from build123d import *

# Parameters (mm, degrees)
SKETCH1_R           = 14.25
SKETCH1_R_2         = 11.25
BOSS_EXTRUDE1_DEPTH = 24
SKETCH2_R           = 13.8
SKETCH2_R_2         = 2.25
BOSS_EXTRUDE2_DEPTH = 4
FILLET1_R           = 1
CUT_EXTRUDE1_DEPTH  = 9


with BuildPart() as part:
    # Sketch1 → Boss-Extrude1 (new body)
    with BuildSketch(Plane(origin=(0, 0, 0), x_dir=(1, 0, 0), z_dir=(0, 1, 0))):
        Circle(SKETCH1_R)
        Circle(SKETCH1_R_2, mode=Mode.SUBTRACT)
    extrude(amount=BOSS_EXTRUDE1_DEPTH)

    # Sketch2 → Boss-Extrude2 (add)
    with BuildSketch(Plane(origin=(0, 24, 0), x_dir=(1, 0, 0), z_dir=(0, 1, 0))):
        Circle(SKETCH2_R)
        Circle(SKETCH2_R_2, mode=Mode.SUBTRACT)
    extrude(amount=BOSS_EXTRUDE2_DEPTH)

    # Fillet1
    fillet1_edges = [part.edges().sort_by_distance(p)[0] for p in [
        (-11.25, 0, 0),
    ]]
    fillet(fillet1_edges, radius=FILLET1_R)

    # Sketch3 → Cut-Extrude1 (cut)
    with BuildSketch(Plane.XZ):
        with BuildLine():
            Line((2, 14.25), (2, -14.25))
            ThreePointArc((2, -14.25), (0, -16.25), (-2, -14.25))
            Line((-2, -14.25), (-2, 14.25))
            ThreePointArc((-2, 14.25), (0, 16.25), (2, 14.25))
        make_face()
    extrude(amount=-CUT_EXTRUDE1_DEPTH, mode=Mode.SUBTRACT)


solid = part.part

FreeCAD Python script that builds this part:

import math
import FreeCAD as App
import Part
import Sketcher

V = App.Vector


def edges_at(feature, points):
    """Names of the edges that pass closest to the given points."""
    edges = feature.Shape.Edges
    near = lambda p: min(range(len(edges)), key=lambda i: edges[i].distToShape(Part.Vertex(*p))[0])
    return sorted({f"Edge{near(p) + 1}" for p in points})

doc = App.newDocument("Part")
body = doc.addObject("PartDesign::Body", "Body")

sketch1 = body.newObject("Sketcher::SketchObject", "Sketch")
sketch1.AttachmentSupport = (doc.getObject("XZ_Plane"), [""])
sketch1.MapMode = "FlatFace"
sketch1.addGeometry(Part.Circle(V(0, 0, 0), V(0, 0, 1), 14), False)
sketch1.addGeometry(Part.Circle(V(0, 0, 0), V(0, 0, 1), 11), False)
sketch1.addConstraint(Sketcher.Constraint("Coincident", 0, 3, -1, 1))
sketch1.addConstraint(Sketcher.Constraint("Coincident", 1, 3, -1, 1))
sketch1.addConstraint(Sketcher.Constraint("Diameter", 0, 28.5))
sketch1.addConstraint(Sketcher.Constraint("Diameter", 1, 22.5))
pad1 = body.newObject("PartDesign::Pad", "Pad")
pad1.Profile = sketch1
pad1.Length = 24
pad1.Reversed = True

sketch2 = body.newObject("Sketcher::SketchObject", "Sketch001")
sketch2.AttachmentSupport = (doc.getObject("XZ_Plane"), [""])
sketch2.MapMode = "FlatFace"
sketch2.AttachmentOffset = App.Placement(V(0, 0, -24), App.Rotation())
sketch2.addGeometry(Part.Circle(V(0, 0, 0), V(0, 0, 1), 13.8), False)
sketch2.addGeometry(Part.Circle(V(0, 0, 0), V(0, 0, 1), 2.2), False)
sketch2.addConstraint(Sketcher.Constraint("Coincident", 0, 3, -1, 1))
sketch2.addConstraint(Sketcher.Constraint("Coincident", 1, 3, -1, 1))
sketch2.addConstraint(Sketcher.Constraint("Diameter", 0, 27.6))
sketch2.addConstraint(Sketcher.Constraint("Diameter", 1, 4.5))
pad2 = body.newObject("PartDesign::Pad", "Pad001")
pad2.Profile = sketch2
pad2.Length = 4
pad2.Reversed = True
doc.recompute()

fillet = body.newObject("PartDesign::Fillet", "Fillet")
fillet.Base = (pad2, edges_at(pad2, [(-11.25, 0, 0)]))
fillet.Radius = 1

sketch3 = body.newObject("Sketcher::SketchObject", "Sketch002")
sketch3.AttachmentSupport = (doc.getObject("XZ_Plane"), [""])
sketch3.MapMode = "FlatFace"
sketch3.addGeometry(Part.LineSegment(V(2, -14.2, 0), V(2, 14.2, 0)), False)
sketch3.addGeometry(Part.ArcOfCircle(Part.Circle(V(0, 14.2, 0), V(0, 0, 1), 2), math.radians(0), math.radians(180)), False)
sketch3.addGeometry(Part.LineSegment(V(-2, 14.2, 0), V(-2, -14.2, 0)), False)
sketch3.addGeometry(Part.ArcOfCircle(Part.Circle(V(0, -14.2, 0), V(0, 0, 1), 2), math.radians(180), math.radians(360)), False)
sketch3.addConstraint(Sketcher.Constraint("Tangent", 0, 2, 1, 1))
sketch3.addConstraint(Sketcher.Constraint("Tangent", 1, 2, 2, 1))
sketch3.addConstraint(Sketcher.Constraint("Tangent", 2, 2, 3, 1))
sketch3.addConstraint(Sketcher.Constraint("Tangent", 3, 2, 0, 1))
sketch3.addConstraint(Sketcher.Constraint("Vertical", 0))
sketch3.addConstraint(Sketcher.Constraint("Vertical", 2))
sketch3.addConstraint(Sketcher.Constraint("Symmetric", 1, 3, 3, 3, -1, 1))
sketch3.addConstraint(Sketcher.Constraint("Radius", 1, 2.0))
sketch3.addConstraint(Sketcher.Constraint("DistanceY", 0, 1, 0, 2, 28.5))
pocket1 = body.newObject("PartDesign::Pocket", "Pocket")
pocket1.Profile = sketch3
pocket1.Length = 9

doc.recompute()
